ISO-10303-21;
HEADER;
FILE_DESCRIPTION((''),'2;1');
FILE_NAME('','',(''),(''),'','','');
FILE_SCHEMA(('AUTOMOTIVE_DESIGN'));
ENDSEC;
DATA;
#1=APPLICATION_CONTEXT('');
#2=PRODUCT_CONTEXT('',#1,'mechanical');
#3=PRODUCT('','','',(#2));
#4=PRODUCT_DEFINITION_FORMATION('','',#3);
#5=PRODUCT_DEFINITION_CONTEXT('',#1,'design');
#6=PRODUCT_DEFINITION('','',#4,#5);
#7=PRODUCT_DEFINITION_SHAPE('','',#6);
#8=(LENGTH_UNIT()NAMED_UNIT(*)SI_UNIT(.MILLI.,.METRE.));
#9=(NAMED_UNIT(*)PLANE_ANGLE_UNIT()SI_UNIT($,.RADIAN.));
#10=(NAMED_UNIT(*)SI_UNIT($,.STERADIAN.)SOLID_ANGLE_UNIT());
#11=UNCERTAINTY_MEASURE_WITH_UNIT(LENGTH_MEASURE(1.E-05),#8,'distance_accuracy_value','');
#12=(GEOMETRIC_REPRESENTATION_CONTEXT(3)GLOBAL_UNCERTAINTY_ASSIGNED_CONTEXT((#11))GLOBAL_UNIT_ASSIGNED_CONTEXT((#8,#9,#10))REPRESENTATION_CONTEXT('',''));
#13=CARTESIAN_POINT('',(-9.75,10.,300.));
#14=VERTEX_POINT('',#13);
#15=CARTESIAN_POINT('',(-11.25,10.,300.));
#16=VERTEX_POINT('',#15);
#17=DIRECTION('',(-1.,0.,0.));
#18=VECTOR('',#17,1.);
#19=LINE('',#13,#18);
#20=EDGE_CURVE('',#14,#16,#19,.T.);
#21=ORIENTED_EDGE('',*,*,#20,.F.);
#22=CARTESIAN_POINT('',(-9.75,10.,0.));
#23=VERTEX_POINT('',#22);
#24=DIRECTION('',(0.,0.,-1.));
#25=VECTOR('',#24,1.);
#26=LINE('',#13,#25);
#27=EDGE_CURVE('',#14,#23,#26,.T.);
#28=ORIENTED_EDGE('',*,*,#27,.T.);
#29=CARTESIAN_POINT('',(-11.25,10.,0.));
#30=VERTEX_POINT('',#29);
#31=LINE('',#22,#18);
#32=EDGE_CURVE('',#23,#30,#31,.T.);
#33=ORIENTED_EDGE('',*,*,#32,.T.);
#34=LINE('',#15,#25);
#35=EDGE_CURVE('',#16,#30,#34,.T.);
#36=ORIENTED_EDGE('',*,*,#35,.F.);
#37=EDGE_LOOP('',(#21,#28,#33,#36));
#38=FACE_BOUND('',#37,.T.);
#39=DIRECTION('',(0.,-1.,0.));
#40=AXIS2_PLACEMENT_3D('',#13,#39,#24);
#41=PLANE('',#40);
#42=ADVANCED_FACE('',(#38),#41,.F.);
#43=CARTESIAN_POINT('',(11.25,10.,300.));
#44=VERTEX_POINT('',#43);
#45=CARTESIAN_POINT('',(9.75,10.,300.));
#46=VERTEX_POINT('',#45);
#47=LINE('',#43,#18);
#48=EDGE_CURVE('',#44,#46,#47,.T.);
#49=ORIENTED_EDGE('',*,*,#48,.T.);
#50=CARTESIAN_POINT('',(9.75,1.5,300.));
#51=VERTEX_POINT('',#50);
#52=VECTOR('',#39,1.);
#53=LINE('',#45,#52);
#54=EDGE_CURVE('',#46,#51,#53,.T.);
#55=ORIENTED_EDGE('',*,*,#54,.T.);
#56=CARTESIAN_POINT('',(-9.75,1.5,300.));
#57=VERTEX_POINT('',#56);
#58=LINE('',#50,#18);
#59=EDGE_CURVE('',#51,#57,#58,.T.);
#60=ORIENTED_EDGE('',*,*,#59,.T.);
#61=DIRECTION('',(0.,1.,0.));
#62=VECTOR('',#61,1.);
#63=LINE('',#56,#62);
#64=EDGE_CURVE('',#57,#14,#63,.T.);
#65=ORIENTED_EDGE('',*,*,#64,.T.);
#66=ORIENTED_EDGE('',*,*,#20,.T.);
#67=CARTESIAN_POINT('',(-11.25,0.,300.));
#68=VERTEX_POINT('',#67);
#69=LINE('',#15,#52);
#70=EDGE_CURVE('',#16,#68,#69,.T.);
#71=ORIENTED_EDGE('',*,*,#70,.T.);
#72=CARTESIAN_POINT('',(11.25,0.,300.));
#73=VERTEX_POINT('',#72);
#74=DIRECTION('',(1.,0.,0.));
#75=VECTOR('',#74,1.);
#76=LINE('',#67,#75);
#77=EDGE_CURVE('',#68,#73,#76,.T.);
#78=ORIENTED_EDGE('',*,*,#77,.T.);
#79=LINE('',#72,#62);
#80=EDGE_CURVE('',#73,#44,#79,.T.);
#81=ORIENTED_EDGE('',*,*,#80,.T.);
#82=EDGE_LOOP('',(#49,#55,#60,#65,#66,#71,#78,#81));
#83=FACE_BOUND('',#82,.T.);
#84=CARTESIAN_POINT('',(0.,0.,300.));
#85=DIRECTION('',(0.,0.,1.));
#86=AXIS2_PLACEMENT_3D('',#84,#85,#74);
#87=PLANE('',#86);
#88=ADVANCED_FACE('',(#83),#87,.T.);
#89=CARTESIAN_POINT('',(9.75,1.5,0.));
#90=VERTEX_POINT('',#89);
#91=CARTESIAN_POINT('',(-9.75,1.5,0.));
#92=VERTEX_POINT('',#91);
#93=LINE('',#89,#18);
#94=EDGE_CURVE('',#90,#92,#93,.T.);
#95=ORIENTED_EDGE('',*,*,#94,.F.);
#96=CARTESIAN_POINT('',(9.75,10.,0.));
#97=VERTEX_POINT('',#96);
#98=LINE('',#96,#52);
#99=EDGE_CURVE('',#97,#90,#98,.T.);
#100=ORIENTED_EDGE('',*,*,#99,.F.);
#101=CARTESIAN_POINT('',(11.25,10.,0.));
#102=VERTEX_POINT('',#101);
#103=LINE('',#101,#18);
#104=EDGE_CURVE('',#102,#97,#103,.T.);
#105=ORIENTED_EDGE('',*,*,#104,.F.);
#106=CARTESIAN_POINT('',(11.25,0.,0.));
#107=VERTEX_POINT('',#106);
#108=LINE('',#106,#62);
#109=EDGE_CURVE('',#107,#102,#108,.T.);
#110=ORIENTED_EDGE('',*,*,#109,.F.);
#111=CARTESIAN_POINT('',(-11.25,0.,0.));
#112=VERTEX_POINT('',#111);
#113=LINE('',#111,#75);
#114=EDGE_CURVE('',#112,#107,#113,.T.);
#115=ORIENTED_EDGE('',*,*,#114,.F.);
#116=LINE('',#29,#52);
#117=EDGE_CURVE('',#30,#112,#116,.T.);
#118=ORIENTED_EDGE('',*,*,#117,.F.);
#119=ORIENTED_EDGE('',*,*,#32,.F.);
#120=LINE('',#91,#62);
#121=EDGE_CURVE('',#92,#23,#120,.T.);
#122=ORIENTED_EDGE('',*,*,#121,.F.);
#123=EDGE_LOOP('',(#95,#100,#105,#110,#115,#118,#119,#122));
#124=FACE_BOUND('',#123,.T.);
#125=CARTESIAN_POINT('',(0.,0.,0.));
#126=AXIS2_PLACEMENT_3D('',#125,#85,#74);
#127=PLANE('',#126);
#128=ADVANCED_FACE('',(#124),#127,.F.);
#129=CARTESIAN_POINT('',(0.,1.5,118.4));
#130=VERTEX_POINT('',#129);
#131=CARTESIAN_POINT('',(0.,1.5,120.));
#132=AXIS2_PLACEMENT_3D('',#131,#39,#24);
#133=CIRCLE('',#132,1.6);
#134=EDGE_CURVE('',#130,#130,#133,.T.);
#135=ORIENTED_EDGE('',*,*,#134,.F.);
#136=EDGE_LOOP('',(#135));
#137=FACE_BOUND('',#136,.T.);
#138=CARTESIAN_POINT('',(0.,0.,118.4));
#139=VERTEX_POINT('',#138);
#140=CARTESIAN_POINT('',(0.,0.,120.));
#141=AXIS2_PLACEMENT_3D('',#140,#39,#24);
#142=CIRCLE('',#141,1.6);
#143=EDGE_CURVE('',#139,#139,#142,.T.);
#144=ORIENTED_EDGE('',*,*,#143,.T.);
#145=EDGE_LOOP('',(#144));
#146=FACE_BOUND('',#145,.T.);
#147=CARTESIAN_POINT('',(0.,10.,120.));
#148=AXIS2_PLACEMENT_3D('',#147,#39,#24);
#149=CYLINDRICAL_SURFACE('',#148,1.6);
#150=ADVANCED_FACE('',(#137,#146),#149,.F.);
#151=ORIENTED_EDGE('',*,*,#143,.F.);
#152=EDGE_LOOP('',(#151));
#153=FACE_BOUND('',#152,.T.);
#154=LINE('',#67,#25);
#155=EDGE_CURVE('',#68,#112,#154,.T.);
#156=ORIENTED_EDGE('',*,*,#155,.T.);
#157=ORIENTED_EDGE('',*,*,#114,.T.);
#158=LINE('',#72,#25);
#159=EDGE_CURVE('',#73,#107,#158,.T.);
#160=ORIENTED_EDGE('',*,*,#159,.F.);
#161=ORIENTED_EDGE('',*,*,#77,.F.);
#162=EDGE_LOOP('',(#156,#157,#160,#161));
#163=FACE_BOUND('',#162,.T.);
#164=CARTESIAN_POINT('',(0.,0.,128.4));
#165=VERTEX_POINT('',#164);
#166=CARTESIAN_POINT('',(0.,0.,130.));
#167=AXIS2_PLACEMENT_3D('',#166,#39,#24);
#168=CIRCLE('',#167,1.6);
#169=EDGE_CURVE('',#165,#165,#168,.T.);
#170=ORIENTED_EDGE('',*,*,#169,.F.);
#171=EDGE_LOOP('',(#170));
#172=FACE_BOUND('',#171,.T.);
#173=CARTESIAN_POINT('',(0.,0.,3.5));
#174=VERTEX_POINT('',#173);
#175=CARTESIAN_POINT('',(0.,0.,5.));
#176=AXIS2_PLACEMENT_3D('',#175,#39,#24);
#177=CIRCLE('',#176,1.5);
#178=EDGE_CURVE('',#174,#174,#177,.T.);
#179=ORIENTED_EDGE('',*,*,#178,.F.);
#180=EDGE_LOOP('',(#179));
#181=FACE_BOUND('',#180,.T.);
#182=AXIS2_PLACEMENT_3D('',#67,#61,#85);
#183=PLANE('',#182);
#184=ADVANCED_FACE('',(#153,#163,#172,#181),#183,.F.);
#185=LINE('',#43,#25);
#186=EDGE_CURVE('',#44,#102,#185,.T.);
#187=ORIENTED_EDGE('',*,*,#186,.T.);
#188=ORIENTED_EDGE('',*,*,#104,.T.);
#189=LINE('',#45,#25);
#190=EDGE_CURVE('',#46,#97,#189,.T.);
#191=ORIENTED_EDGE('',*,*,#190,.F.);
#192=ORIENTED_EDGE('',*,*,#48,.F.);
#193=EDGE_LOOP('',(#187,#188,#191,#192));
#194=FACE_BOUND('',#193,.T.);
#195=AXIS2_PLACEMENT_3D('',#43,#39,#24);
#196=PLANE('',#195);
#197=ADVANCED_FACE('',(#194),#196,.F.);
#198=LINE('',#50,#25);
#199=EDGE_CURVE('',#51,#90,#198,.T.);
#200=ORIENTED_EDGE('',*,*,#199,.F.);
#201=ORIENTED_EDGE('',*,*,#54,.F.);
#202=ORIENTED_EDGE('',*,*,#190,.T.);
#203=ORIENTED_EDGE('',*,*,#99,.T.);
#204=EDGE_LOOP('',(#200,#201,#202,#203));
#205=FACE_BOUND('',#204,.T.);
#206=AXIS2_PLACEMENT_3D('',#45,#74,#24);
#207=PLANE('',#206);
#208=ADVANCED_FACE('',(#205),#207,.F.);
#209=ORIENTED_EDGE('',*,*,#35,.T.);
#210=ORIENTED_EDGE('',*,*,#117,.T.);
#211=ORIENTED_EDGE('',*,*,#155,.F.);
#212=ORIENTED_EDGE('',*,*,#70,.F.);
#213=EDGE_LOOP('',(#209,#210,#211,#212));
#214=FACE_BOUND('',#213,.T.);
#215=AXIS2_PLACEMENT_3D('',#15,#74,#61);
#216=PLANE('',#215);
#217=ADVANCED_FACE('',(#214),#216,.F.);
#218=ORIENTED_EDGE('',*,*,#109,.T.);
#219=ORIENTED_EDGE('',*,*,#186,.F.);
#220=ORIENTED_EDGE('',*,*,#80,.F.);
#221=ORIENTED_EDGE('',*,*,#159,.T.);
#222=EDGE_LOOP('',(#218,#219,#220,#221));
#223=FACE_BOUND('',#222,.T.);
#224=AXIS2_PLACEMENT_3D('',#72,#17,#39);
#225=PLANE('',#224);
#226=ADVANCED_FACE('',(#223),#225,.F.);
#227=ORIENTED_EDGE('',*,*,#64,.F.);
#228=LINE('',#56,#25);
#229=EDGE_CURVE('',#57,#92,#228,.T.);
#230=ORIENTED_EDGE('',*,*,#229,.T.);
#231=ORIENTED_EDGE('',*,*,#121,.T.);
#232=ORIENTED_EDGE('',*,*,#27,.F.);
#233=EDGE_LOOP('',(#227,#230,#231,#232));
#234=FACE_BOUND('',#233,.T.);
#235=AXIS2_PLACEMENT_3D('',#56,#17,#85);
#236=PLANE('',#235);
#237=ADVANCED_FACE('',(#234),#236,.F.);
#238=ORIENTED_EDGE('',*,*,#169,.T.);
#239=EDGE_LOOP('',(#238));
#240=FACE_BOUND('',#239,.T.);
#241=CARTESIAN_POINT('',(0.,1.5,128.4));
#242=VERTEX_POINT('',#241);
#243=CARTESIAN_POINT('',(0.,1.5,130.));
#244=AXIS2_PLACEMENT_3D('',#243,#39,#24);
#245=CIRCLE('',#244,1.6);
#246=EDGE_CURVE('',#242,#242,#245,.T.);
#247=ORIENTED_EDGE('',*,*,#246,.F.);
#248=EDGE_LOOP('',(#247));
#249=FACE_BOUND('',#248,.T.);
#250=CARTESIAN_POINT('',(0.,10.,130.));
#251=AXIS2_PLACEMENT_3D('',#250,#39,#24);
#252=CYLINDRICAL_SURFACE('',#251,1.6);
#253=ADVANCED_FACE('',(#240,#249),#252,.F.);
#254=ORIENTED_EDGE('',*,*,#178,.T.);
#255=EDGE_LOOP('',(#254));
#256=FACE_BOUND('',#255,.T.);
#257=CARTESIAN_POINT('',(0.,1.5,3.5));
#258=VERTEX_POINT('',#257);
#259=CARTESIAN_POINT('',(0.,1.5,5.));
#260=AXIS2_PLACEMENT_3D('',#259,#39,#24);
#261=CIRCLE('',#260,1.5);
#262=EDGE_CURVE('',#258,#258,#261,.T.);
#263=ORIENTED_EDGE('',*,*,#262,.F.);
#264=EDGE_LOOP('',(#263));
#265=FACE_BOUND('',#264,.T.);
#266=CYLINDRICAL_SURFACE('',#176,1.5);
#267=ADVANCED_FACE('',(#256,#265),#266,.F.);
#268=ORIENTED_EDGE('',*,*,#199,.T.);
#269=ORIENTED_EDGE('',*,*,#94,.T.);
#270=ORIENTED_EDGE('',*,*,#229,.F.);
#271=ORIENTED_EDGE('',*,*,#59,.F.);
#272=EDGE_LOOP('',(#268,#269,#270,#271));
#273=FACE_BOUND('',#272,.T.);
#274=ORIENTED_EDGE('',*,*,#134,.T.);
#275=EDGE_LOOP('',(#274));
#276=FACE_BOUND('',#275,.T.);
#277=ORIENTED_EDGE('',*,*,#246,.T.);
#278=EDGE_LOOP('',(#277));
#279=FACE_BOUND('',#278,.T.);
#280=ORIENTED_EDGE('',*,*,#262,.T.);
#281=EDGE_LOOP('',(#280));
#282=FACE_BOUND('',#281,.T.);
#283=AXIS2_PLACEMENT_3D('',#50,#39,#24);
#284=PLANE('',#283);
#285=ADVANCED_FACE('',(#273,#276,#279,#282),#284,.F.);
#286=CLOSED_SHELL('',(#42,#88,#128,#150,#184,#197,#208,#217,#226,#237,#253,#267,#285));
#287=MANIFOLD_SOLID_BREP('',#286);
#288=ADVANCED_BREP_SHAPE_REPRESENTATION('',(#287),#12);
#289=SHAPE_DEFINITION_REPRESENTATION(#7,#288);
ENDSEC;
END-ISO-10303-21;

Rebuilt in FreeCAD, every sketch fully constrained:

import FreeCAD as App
import Part
import Sketcher


def add_polygon(sketch, points):
    """Adds a closed chain of lines whose ends are joined by coincident constraints."""
    first, n = sketch.GeometryCount, len(points)
    for a, b in zip(points, points[1:] + points[:1]):
        sketch.addGeometry(Part.LineSegment(App.Vector(*a, 0), App.Vector(*b, 0)), False)
    for i in range(n):
        sketch.addConstraint(Sketcher.Constraint("Coincident", first + i, 2, first + (i + 1) % n, 1))

doc = App.newDocument("Part")
body = doc.addObject("PartDesign::Body", "Body")

# Sketch on XY plane
sketch1 = body.newObject("Sketcher::SketchObject", "Sketch")
sketch1.AttachmentSupport = (doc.getObject("XY_Plane"), [""])
sketch1.MapMode = "FlatFace"
add_polygon(sketch1, [(-11.2, 0), (11.2, 0), (11.2, 10), (9.8, 10), (9.8, 1.5), (-9.8, 1.5), (-9.8, 10), (-11.2, 10)])  # lines 0-7
sketch1.addConstraint([
    Sketcher.Constraint("Horizontal", 0),
    Sketcher.Constraint("Vertical", 1),
    Sketcher.Constraint("Horizontal", 2),
    Sketcher.Constraint("Vertical", 3),
    Sketcher.Constraint("Horizontal", 4),
    Sketcher.Constraint("Vertical", 5),
    Sketcher.Constraint("Horizontal", 6),
    Sketcher.Constraint("Vertical", 7),
    Sketcher.Constraint("Symmetric", 0, 2, 7, 2, -1, 1),
    Sketcher.Constraint("Symmetric", 2, 2, 5, 2, -2),
    Sketcher.Constraint("DistanceY", 1, 1, 1, 2, 10.0),
    Sketcher.Constraint("DistanceX", 0, 1, 0, 2, 22.5),
    Sketcher.Constraint("DistanceX", 2, 2, 2, 1, 1.5),
    Sketcher.Constraint("DistanceY", 3, 2, 3, 1, 8.5),
])
pad1 = body.newObject("PartDesign::Pad", "Pad")
pad1.Profile = sketch1
pad1.Length = 300

# Sketch on XZ plane
sketch2 = body.newObject("Sketcher::SketchObject", "Sketch001")
sketch2.AttachmentSupport = (doc.getObject("XZ_Plane"), [""])
sketch2.MapMode = "FlatFace"
sketch2.addGeometry([
    Part.Circle(App.Vector(0, 120, 0), App.Vector(0, 0, 1), 1.6),
    Part.Circle(App.Vector(0, 130, 0), App.Vector(0, 0, 1), 1.6),
], False)
sketch2.addConstraint([
    Sketcher.Constraint("Equal", 0, 1),
    Sketcher.Constraint("PointOnObject", 0, 3, -2),
    Sketcher.Constraint("PointOnObject", 1, 3, -2),
    Sketcher.Constraint("Diameter", 0, 3.2),
    Sketcher.Constraint("DistanceY", -1, 1, 0, 3, 120.0),
    Sketcher.Constraint("DistanceY", -1, 1, 1, 3, 130.0),
])
pocket1 = body.newObject("PartDesign::Pocket", "Pocket")
pocket1.Profile = sketch2
pocket1.Type = "ThroughAll"

# Sketch on XZ plane
sketch3 = body.newObject("Sketcher::SketchObject", "Sketch002")
sketch3.AttachmentSupport = (doc.getObject("XZ_Plane"), [""])
sketch3.MapMode = "FlatFace"
sketch3.addGeometry(Part.Circle(App.Vector(0, 5, 0), App.Vector(0, 0, 1), 1.5), False)
sketch3.addConstraint([
    Sketcher.Constraint("PointOnObject", 0, 3, -2),
    Sketcher.Constraint("Diameter", 0, 3.0),
    Sketcher.Constraint("DistanceY", -1, 1, 0, 3, 5.0),
])
doc.recompute()
hole = body.newObject("PartDesign::Hole", "Hole")
hole.Profile = sketch3
hole.ThreadType = "None"
hole.Diameter = 3
hole.DepthType = "Dimension"
hole.Depth = 12.5
hole.DrillPoint = "Angled"
hole.DrillPointAngle = 118

doc.recompute()
